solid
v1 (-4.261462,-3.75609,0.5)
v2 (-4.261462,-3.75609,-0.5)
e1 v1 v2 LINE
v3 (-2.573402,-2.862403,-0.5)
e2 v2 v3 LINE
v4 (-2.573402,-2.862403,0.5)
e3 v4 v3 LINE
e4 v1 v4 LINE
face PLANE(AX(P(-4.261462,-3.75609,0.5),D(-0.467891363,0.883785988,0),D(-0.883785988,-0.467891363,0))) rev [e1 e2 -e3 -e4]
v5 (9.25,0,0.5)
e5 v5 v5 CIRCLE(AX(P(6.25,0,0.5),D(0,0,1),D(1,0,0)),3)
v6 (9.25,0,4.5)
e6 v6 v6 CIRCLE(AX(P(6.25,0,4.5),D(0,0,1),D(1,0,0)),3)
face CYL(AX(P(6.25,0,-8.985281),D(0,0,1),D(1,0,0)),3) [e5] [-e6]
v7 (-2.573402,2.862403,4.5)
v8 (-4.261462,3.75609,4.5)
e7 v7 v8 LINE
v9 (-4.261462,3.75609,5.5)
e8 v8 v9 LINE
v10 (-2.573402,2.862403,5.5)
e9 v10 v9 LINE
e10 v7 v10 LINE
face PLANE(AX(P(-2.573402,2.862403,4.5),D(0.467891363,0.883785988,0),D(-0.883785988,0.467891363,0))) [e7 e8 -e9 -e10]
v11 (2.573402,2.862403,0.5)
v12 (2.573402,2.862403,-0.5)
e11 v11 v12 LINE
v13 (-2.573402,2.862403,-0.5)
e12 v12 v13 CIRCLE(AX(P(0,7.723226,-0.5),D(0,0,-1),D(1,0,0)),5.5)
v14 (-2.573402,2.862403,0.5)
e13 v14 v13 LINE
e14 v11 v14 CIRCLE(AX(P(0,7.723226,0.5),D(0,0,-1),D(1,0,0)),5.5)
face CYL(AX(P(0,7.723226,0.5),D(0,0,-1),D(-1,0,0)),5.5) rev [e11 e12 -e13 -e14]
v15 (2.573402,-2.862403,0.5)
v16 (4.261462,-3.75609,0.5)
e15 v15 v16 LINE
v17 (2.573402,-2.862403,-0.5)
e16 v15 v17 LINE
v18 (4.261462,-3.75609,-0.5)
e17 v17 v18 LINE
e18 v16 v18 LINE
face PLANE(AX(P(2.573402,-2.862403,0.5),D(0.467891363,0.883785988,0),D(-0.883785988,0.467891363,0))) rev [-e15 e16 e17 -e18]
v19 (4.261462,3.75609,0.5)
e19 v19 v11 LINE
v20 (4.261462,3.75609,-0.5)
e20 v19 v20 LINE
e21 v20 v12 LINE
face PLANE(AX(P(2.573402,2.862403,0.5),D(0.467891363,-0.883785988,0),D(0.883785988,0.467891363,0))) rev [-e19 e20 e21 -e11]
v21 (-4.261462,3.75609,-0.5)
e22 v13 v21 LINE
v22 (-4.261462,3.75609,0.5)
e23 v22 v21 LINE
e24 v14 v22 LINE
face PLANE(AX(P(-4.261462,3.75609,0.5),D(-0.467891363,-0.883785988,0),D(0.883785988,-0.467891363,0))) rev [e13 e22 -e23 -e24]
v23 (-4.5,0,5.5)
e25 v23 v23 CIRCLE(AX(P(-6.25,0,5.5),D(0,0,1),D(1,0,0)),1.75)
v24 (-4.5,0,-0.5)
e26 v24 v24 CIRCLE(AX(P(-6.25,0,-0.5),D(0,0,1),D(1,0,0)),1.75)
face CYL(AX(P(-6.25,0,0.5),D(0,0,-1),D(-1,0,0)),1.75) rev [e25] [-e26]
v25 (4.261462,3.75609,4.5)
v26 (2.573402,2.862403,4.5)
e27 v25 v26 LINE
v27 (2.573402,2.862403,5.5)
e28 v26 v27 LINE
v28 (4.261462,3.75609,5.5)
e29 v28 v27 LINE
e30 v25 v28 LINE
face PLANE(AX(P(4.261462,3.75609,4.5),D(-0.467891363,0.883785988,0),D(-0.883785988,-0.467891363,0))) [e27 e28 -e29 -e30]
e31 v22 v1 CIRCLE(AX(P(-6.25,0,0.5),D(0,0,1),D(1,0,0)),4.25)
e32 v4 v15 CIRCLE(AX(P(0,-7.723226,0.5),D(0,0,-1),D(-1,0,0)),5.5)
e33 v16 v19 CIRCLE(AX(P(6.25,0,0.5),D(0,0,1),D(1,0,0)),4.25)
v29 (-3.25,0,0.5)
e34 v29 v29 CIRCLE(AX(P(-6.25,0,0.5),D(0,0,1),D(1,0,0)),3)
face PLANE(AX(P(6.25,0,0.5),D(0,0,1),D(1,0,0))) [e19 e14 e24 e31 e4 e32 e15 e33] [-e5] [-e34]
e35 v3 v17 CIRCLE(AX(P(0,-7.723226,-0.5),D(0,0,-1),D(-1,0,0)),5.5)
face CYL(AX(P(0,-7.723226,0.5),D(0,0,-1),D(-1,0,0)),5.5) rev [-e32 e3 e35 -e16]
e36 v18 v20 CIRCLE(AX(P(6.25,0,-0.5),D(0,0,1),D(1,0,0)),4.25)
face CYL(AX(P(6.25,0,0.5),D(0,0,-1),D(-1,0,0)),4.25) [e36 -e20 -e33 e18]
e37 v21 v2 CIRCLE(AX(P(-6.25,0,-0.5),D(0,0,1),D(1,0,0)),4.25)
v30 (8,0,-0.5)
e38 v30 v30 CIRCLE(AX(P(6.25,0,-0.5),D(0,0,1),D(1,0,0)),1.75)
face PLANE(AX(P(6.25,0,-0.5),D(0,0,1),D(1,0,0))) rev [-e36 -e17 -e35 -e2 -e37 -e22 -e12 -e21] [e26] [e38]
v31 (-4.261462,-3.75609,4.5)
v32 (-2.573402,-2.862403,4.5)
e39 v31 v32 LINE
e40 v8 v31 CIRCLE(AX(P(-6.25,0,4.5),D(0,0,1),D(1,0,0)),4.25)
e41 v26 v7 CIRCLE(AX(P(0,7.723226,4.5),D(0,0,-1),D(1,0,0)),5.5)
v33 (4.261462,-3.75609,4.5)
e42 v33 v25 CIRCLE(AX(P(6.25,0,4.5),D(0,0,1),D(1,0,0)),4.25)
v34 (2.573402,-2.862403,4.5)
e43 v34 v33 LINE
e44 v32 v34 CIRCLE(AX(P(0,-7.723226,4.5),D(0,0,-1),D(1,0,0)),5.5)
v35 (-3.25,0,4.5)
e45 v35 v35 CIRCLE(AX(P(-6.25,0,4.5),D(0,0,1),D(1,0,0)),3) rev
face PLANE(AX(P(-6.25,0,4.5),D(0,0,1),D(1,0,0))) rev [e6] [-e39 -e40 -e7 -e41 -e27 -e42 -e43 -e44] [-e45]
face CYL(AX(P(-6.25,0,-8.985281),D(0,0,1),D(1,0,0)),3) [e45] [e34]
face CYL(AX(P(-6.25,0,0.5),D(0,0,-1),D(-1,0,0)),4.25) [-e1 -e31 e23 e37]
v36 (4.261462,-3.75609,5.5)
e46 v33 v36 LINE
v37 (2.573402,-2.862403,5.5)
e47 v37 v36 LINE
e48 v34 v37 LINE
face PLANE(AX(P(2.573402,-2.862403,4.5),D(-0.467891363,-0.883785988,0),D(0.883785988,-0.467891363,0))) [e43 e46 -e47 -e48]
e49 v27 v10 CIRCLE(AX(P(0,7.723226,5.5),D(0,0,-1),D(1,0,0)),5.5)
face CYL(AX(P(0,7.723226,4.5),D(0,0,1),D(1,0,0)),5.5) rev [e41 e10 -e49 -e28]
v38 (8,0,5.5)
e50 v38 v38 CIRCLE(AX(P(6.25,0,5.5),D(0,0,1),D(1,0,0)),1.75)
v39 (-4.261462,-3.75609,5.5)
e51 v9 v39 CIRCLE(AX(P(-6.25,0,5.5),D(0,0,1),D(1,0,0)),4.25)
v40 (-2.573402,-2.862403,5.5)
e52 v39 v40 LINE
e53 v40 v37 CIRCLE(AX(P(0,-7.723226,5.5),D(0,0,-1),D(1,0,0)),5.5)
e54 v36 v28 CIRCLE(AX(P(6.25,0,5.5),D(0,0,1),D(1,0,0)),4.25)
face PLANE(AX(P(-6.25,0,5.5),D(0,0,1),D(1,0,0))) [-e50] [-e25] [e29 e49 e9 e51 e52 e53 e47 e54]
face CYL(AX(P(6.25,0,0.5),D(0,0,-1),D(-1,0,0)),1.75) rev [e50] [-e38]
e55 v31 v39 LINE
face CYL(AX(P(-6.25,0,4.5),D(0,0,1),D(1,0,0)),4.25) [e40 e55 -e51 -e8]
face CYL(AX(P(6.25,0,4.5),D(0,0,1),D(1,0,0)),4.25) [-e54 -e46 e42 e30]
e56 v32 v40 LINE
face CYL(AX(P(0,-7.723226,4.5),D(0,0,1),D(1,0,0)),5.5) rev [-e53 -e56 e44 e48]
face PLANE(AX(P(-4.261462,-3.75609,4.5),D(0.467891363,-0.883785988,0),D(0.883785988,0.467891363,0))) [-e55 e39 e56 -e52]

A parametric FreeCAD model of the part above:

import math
import FreeCAD as App
import Part
import Sketcher

V = App.Vector

doc = App.newDocument("Part")
params = doc.addObject("Spreadsheet::Sheet", "Params")
for row, (alias, value) in enumerate([
    ("sketch1_diameter", "3.5 mm"),
    ("sketch1_radius", "5.5 mm"),
    ("sketch1_radius2", "4.25 mm"),
    ("pad1_length", "1 mm"),
    ("sketch2_diameter", "3.5 mm"),
    ("sketch2_radius", "5.5 mm"),
    ("sketch2_radius2", "4.25 mm"),
    ("pad2_length", "1 mm"),
    ("sketch3_diameter", "6 mm"),
    ("sketch3_diameter2", "3.5 mm"),
    ("pad3_length", "6 mm"),
], start=1):
    params.set(f"A{row}", alias)
    params.set(f"B{row}", "=" + value)
    params.setAlias(f"B{row}", alias)

body = doc.addObject("PartDesign::Body", "Body")

sketch1 = doc.addObject("Sketcher::SketchObject", "Sketch")
body.addObject(sketch1)
sketch1.AttachmentSupport = (doc.XY_Plane, [""])
sketch1.MapMode = "FlatFace"
sketch1.addGeometry([
    Part.LineSegment(V(-2.6, 2.9, 0), V(-4.3, 3.8, 0)),
    Part.ArcOfCircle(Part.Circle(V(-6.2, 0, 0), V(0, 0, 1), 4.2), math.radians(62), math.radians(298)),
    Part.LineSegment(V(-4.3, -3.8, 0), V(-2.6, -2.9, 0)),
    Part.ArcOfCircle(Part.Circle(V(0, -7.7, 0), V(0, 0, 1), 5.5), math.radians(62), math.radians(118)),
    Part.LineSegment(V(2.6, -2.9, 0), V(4.3, -3.8, 0)),
    Part.ArcOfCircle(Part.Circle(V(6.2, 0, 0), V(0, 0, 1), 4.2), math.radians(-118), math.radians(118)),
    Part.LineSegment(V(4.3, 3.8, 0), V(2.6, 2.9, 0)),
    Part.ArcOfCircle(Part.Circle(V(0, 7.7, 0), V(0, 0, 1), 5.5), math.radians(-118), math.radians(-62)),
    Part.Circle(V(6.2, 0, 0), V(0, 0, 1), 1.8),
    Part.Circle(V(-6.2, 0, 0), V(0, 0, 1), 1.8),
], False)
sketch1.addConstraint([
    Sketcher.Constraint("Tangent", 0, 2, 1, 1),
    Sketcher.Constraint("Tangent", 1, 2, 2, 1),
    Sketcher.Constraint("Tangent", 2, 2, 3, 2),
    Sketcher.Constraint("Tangent", 3, 1, 4, 1),
    Sketcher.Constraint("Tangent", 4, 2, 5, 1),
    Sketcher.Constraint("Tangent", 5, 2, 6, 1),
    Sketcher.Constraint("Tangent", 6, 2, 7, 2),
    Sketcher.Constraint("Tangent", 7, 1, 0, 1),
    Sketcher.Constraint("Coincident", 8, 3, 5, 3),
    Sketcher.Constraint("Coincident", 9, 3, 1, 3),
    Sketcher.Constraint("Equal", 1, 5),
    Sketcher.Constraint("Equal", 3, 7),
    Sketcher.Constraint("Equal", 8, 9),
    Sketcher.Constraint("Symmetric", 1, 3, 5, 3, -1, 1),
    Sketcher.Constraint("Symmetric", 3, 3, 7, 3, -1, 1),
    Sketcher.Constraint("Symmetric", 2, 2, 3, 1, -2),
    Sketcher.Constraint("Diameter", 8, 3.5),
    Sketcher.Constraint("Radius", 3, 5.5),
    Sketcher.Constraint("Radius", 1, 4.25),
    Sketcher.Constraint("DistanceX", 1, 3, 5, 3, 12.5),
    Sketcher.Constraint("Distance", 0, 1.910032),
])
sketch1.setExpression("Constraints[16]", "Params.sketch1_diameter")
sketch1.setExpression("Constraints[17]", "Params.sketch1_radius")
sketch1.setExpression("Constraints[18]", "Params.sketch1_radius2")
pad1 = doc.addObject("PartDesign::Pad", "Pad")
body.addObject(pad1)
pad1.Profile = sketch1
pad1.setExpression("Length", "Params.pad1_length")
pad1.Midplane = True
body2 = doc.addObject("PartDesign::Body", "Body001")

sketch2 = doc.addObject("Sketcher::SketchObject", "Sketch001")
body2.addObject(sketch2)
sketch2.AttachmentSupport = (doc.getObject("XY_Plane001"), [""])
sketch2.MapMode = "FlatFace"
sketch2.AttachmentOffset = App.Placement(V(0, 0, 5.5), App.Rotation())
sketch2.addGeometry([
    Part.LineSegment(V(-2.6, 2.9, 0), V(-4.3, 3.8, 0)),
    Part.ArcOfCircle(Part.Circle(V(-6.2, 0, 0), V(0, 0, 1), 4.2), math.radians(62), math.radians(298)),
    Part.LineSegment(V(-4.3, -3.8, 0), V(-2.6, -2.9, 0)),
    Part.ArcOfCircle(Part.Circle(V(0, -7.7, 0), V(0, 0, 1), 5.5), math.radians(62), math.radians(118)),
    Part.LineSegment(V(2.6, -2.9, 0), V(4.3, -3.8, 0)),
    Part.ArcOfCircle(Part.Circle(V(6.2, 0, 0), V(0, 0, 1), 4.2), math.radians(-118), math.radians(118)),
    Part.LineSegment(V(4.3, 3.8, 0), V(2.6, 2.9, 0)),
    Part.ArcOfCircle(Part.Circle(V(0, 7.7, 0), V(0, 0, 1), 5.5), math.radians(-118), math.radians(-62)),
    Part.Circle(V(-6.2, 0, 0), V(0, 0, 1), 1.8),
    Part.Circle(V(6.2, 0, 0), V(0, 0, 1), 1.8),
], False)
sketch2.addConstraint([
    Sketcher.Constraint("Tangent", 0, 2, 1, 1),
    Sketcher.Constraint("Tangent", 1, 2, 2, 1),
    Sketcher.Constraint("Tangent", 2, 2, 3, 2),
    Sketcher.Constraint("Tangent", 3, 1, 4, 1),
    Sketcher.Constraint("Tangent", 4, 2, 5, 1),
    Sketcher.Constraint("Tangent", 5, 2, 6, 1),
    Sketcher.Constraint("Tangent", 6, 2, 7, 2),
    Sketcher.Constraint("Tangent", 7, 1, 0, 1),
    Sketcher.Constraint("Coincident", 8, 3, 1, 3),
    Sketcher.Constraint("Coincident", 9, 3, 5, 3),
    Sketcher.Constraint("Equal", 1, 5),
    Sketcher.Constraint("Equal", 3, 7),
    Sketcher.Constraint("Equal", 8, 9),
    Sketcher.Constraint("Symmetric", 1, 3, 5, 3, -1, 1),
    Sketcher.Constraint("Symmetric", 3, 3, 7, 3, -1, 1),
    Sketcher.Constraint("Symmetric", 2, 2, 3, 1, -2),
    Sketcher.Constraint("Diameter", 8, 3.5),
    Sketcher.Constraint("Radius", 3, 5.5),
    Sketcher.Constraint("Radius", 1, 4.25),
    Sketcher.Constraint("DistanceX", 1, 3, 5, 3, 12.5),
    Sketcher.Constraint("Distance", 0, 1.910032),
])
sketch2.setExpression("Constraints[16]", "Params.sketch2_diameter")
sketch2.setExpression("Constraints[17]", "Params.sketch2_radius")
sketch2.setExpression("Constraints[18]", "Params.sketch2_radius2")
pad2 = doc.addObject("PartDesign::Pad", "Pad001")
body2.addObject(pad2)
pad2.Profile = sketch2
pad2.setExpression("Length", "Params.pad2_length")
pad2.Reversed = True
body.AllowCompound = True
doc.recompute()

boolean = doc.addObject("PartDesign::Boolean", "Boolean")
body.addObject(boolean)
boolean.Type = "Fuse"
boolean.addObjects([body2])

sketch3 = doc.addObject("Sketcher::SketchObject", "Sketch002")
body.addObject(sketch3)
sketch3.AttachmentSupport = (doc.XY_Plane, [""])
sketch3.MapMode = "FlatFace"
sketch3.AttachmentOffset = App.Placement(V(0, 0, -0.5), App.Rotation())
sketch3.addGeometry([
    Part.Circle(V(-6.2, 0, 0), V(0, 0, 1), 3),
    Part.Circle(V(-6.2, 0, 0), V(0, 0, 1), 1.8),
    Part.Circle(V(6.2, 0, 0), V(0, 0, 1), 3),
    Part.Circle(V(6.2, 0, 0), V(0, 0, 1), 1.8),
], False)
sketch3.addConstraint([
    Sketcher.Constraint("Coincident", 1, 3, 0, 3),
    Sketcher.Constraint("Coincident", 3, 3, 2, 3),
    Sketcher.Constraint("Equal", 0, 2),
    Sketcher.Constraint("Equal", 1, 3),
    Sketcher.Constraint("Symmetric", 0, 3, 2, 3, -1, 1),
    Sketcher.Constraint("PointOnObject", 0, 3, -1),
    Sketcher.Constraint("Diameter", 0, 6.0),
    Sketcher.Constraint("Diameter", 1, 3.5),
    Sketcher.Constraint("DistanceX", 0, 3, 2, 3, 12.5),
])
sketch3.setExpression("Constraints[6]", "Params.sketch3_diameter")
sketch3.setExpression("Constraints[7]", "Params.sketch3_diameter2")
pad3 = doc.addObject("PartDesign::Pad", "Pad002")
body.addObject(pad3)
pad3.Profile = sketch3
pad3.setExpression("Length", "Params.pad3_length")

doc.recompute()
